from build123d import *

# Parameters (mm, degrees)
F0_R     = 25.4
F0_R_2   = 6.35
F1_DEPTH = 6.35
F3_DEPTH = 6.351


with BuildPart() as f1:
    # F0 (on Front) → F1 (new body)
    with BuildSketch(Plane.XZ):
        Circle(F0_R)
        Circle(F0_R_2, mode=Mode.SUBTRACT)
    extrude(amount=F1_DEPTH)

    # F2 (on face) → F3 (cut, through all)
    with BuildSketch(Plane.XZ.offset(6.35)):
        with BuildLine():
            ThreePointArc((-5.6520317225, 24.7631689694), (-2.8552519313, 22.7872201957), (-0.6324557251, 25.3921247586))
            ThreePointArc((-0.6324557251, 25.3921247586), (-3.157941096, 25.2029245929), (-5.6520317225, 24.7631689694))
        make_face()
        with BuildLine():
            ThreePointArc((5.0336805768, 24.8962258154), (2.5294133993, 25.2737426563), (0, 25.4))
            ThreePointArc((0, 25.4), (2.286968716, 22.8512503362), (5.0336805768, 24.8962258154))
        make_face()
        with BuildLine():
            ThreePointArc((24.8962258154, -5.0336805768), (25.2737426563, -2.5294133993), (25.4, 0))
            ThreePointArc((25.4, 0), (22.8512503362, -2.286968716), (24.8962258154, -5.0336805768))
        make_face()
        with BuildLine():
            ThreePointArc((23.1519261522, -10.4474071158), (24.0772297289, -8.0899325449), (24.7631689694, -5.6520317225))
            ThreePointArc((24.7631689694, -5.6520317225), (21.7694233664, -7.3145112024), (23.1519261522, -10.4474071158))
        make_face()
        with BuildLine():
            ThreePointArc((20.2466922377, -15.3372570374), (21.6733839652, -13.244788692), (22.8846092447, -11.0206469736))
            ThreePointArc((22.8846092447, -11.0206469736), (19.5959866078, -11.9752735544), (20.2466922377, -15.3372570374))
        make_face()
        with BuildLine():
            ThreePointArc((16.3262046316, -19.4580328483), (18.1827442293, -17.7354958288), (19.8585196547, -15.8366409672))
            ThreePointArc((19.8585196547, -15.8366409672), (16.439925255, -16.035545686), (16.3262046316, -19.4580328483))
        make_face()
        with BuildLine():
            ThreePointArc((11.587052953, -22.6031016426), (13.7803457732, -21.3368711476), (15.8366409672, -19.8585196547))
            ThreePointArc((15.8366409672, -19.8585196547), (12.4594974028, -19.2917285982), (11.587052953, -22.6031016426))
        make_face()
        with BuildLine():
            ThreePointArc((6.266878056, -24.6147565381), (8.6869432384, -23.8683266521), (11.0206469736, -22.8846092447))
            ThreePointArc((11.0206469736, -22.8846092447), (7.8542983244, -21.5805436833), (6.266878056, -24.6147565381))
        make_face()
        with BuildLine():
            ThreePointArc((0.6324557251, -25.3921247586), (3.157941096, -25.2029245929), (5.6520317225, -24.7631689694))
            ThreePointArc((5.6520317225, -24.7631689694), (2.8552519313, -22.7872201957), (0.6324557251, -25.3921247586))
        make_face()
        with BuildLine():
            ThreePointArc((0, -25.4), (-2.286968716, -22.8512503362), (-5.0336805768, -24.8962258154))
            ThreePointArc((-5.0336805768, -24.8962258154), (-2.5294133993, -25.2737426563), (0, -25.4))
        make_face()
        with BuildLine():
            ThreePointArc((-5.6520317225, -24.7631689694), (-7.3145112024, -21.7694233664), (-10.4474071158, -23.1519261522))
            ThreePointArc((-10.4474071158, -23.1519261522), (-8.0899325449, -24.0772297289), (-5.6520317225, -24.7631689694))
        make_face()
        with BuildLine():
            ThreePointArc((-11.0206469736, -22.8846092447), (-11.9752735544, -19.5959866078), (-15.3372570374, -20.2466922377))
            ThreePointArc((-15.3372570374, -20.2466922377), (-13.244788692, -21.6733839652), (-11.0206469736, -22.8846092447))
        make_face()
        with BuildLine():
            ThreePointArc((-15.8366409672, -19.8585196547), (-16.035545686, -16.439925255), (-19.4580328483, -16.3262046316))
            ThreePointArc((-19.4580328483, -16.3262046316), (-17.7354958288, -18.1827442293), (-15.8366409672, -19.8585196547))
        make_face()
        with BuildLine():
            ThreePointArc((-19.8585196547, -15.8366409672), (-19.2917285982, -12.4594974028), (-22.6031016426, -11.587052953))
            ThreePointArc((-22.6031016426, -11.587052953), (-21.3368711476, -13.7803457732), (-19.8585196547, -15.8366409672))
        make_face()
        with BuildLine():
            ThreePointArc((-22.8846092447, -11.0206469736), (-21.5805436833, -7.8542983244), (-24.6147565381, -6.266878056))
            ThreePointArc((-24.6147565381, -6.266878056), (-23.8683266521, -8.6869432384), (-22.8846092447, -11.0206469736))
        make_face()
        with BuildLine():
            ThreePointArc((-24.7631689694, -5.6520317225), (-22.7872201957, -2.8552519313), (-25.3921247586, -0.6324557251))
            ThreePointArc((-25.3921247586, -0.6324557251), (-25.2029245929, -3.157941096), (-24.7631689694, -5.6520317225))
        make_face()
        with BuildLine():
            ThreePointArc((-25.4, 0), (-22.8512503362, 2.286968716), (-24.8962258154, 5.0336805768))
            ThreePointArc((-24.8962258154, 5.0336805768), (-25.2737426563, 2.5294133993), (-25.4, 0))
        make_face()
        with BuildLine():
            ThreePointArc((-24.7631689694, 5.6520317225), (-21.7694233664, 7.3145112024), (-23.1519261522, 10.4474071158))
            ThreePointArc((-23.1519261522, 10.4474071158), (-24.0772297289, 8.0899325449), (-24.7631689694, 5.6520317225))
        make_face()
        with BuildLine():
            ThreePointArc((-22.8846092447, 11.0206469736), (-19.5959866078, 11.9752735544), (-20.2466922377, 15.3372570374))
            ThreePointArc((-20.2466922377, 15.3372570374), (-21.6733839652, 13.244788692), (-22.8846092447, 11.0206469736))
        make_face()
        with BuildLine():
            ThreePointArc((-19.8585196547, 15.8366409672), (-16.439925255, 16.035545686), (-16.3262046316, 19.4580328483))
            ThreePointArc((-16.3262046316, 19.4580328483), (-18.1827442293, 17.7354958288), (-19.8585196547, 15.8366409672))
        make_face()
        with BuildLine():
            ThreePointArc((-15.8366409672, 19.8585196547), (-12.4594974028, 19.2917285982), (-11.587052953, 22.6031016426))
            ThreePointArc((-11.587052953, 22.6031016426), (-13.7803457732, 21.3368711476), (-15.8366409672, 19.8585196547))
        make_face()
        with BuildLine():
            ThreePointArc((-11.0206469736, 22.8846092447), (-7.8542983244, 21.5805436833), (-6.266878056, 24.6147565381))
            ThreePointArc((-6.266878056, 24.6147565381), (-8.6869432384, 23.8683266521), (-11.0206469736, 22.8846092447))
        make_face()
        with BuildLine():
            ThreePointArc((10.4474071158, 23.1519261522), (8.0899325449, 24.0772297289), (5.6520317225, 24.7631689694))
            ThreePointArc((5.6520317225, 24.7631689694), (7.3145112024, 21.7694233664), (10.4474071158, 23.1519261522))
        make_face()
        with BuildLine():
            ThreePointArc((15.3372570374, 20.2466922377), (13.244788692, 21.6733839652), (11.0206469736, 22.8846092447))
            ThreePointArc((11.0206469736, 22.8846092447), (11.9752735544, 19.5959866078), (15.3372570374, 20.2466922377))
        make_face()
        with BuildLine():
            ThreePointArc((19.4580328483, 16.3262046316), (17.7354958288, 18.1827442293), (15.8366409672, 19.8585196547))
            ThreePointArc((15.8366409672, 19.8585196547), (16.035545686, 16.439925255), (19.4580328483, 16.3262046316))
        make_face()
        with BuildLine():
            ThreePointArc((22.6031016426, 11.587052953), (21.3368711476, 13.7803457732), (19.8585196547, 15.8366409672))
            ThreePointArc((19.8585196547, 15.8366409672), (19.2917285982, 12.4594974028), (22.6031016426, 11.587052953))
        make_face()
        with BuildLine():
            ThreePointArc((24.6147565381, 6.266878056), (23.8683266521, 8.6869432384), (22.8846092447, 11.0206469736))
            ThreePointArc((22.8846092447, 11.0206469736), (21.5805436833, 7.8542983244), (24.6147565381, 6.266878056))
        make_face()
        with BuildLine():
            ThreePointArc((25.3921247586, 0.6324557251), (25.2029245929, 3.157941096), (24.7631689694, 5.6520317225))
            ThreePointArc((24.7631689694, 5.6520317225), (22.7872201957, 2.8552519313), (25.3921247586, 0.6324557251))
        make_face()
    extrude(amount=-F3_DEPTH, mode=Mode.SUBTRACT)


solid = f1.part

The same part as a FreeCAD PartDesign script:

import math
import FreeCAD as App
import Part
import Sketcher
from FreeCAD import Vector
Q = App.Units.Quantity

doc = App.newDocument("Part")
params = doc.addObject("Spreadsheet::Sheet", "Params")
for row, (alias, value) in enumerate([
    ("sketch1_diameter", "2 in"),
    ("sketch1_diameter2", "0.5 in"),
    ("pad1_length", "0.25 in"),
    ("sketch2_radius", "1 in"),
    ("sketch2_radius2", "0.1 in"),
], start=1):
    params.set(f"A{row}", alias)
    params.set(f"B{row}", "=" + value)
    params.setAlias(f"B{row}", alias)

body = doc.addObject("PartDesign::Body", "Body")

# Sketch on XZ plane
sketch1 = doc.addObject("Sketcher::SketchObject", "Sketch")
body.addObject(sketch1)
sketch1.AttachmentSupport = (doc.XZ_Plane, [""])
sketch1.MapMode = "FlatFace"
sketch1.addGeometry([
    Part.Circle(Vector(0, 0, 0), Vector(0, 0, 1), 25),
    Part.Circle(Vector(0, 0, 0), Vector(0, 0, 1), 6),
], False)
sketch1.addConstraint([
    Sketcher.Constraint("Coincident", 0, 3, -1, 1),
    Sketcher.Constraint("Coincident", 1, 3, -1, 1),
    Sketcher.Constraint("Diameter", 0, Q("2 in")),
    Sketcher.Constraint("Diameter", 1, Q("0.5 in")),
])
sketch1.setExpression("Constraints[2]", "Params.sketch1_diameter")
sketch1.setExpression("Constraints[3]", "Params.sketch1_diameter2")
pad1 = doc.addObject("PartDesign::Pad", "Pad")
body.addObject(pad1)
pad1.Profile = sketch1
pad1.setExpression("Length", "Params.pad1_length")

# Sketch on XZ plane
sketch2 = doc.addObject("Sketcher::SketchObject", "Sketch001")
body.addObject(sketch2)
sketch2.AttachmentSupport = (doc.XZ_Plane, [""])
sketch2.MapMode = "FlatFace"
sketch2.AttachmentOffset = App.Placement(Vector(0, 0, 0.25 * 25.4), App.Rotation())
sketch2.addGeometry([
    Part.ArcOfCircle(Part.Circle(Vector(-3.171046, 25.307513, 0), Vector(0, 0, 1), 2.54), math.radians(-167.625036), math.radians(1.908982)),  # 0
    Part.ArcOfCircle(Part.Circle(Vector(0, 0, 0), Vector(0, 0, 1), 25.4), math.radians(91.426803), math.radians(102.857143)),  # 1
    Part.ArcOfCircle(Part.Circle(Vector(0, 0, 0), Vector(0, 0, 1), 25.4), math.radians(78.56966), math.radians(90)),  # 2
    Part.ArcOfCircle(Part.Circle(Vector(2.53991, 25.378625, 0), Vector(0, 0, 1), 2.54), math.radians(179.517821), math.radians(349.051839)),  # 3
    Part.ArcOfCircle(Part.Circle(Vector(0, 0, 0), Vector(0, 0, 1), 25.4), math.radians(-11.43034), math.radians(0)),  # 4
    Part.ArcOfCircle(Part.Circle(Vector(25.378625, -2.53991, 0), Vector(0, 0, 1), 2.54), math.radians(89.517821), math.radians(259.051839)),  # 5
    Part.ArcOfCircle(Part.Circle(Vector(0, 0, 0), Vector(0, 0, 1), 25.4), math.radians(-24.287483), math.radians(-12.857143)),  # 6
    Part.ArcOfCircle(Part.Circle(Vector(24.177146, -8.123504, 0), Vector(0, 0, 1), 2.54), math.radians(76.660678), math.radians(246.194696)),  # 7
    Part.ArcOfCircle(Part.Circle(Vector(0, 0, 0), Vector(0, 0, 1), 25.4), math.radians(-37.144626), math.radians(-25.714286)),  # 8
    Part.ArcOfCircle(Part.Circle(Vector(21.763325, -13.299752, 0), Vector(0, 0, 1), 2.54), math.radians(63.803535), math.radians(233.337553)),  # 9
    Part.ArcOfCircle(Part.Circle(Vector(0, 0, 0), Vector(0, 0, 1), 25.4), math.radians(-50.001769), math.radians(-38.571429)),  # 10
    Part.ArcOfCircle(Part.Circle(Vector(18.2582, -17.809095, 0), Vector(0, 0, 1), 2.54), math.radians(50.946392), math.radians(220.48041)),  # 11
    Part.ArcOfCircle(Part.Circle(Vector(0, 0, 0), Vector(0, 0, 1), 25.4), math.radians(-62.858912), math.radians(-51.428571)),  # 12
    Part.ArcOfCircle(Part.Circle(Vector(13.837532, -21.425416, 0), Vector(0, 0, 1), 2.54), math.radians(38.08925), math.radians(207.623267)),  # 13
    Part.ArcOfCircle(Part.Circle(Vector(0, 0, 0), Vector(0, 0, 1), 25.4), math.radians(-75.716054), math.radians(-64.285714)),  # 14
    Part.ArcOfCircle(Part.Circle(Vector(8.722993, -23.967376, 0), Vector(0, 0, 1), 2.54), math.radians(25.232107), math.radians(194.766125)),  # 15
    Part.ArcOfCircle(Part.Circle(Vector(0, 0, 0), Vector(0, 0, 1), 25.4), math.radians(-88.573197), math.radians(-77.142857)),  # 16
    Part.ArcOfCircle(Part.Circle(Vector(3.171046, -25.307513, 0), Vector(0, 0, 1), 2.54), math.radians(12.374964), math.radians(181.908982)),  # 17
    Part.ArcOfCircle(Part.Circle(Vector(-2.53991, -25.378625, 0), Vector(0, 0, 1), 2.54), math.radians(-0.482179), math.radians(169.051839)),  # 18
    Part.ArcOfCircle(Part.Circle(Vector(0, 0, 0), Vector(0, 0, 1), 25.4), math.radians(-101.43034), math.radians(-90)),  # 19
    Part.ArcOfCircle(Part.Circle(Vector(-8.123504, -24.177146, 0), Vector(0, 0, 1), 2.54), math.radians(-13.339322), math.radians(156.194696)),  # 20
    Part.ArcOfCircle(Part.Circle(Vector(0, 0, 0), Vector(0, 0, 1), 25.4), math.radians(-114.287483), math.radians(-102.857143)),  # 21
    Part.ArcOfCircle(Part.Circle(Vector(-13.299752, -21.763325, 0), Vector(0, 0, 1), 2.54), math.radians(-26.196465), math.radians(143.337553)),  # 22
    Part.ArcOfCircle(Part.Circle(Vector(0, 0, 0), Vector(0, 0, 1), 25.4), math.radians(-127.144626), math.radians(-115.714286)),  # 23
    Part.ArcOfCircle(Part.Circle(Vector(-17.809095, -18.2582, 0), Vector(0, 0, 1), 2.54), math.radians(-39.053608), math.radians(130.48041)),  # 24
    Part.ArcOfCircle(Part.Circle(Vector(0, 0, 0), Vector(0, 0, 1), 25.4), math.radians(-140.001769), math.radians(-128.571429)),  # 25
    Part.ArcOfCircle(Part.Circle(Vector(-21.425416, -13.837532, 0), Vector(0, 0, 1), 2.54), math.radians(-51.91075), math.radians(117.623267)),  # 26
    Part.ArcOfCircle(Part.Circle(Vector(0, 0, 0), Vector(0, 0, 1), 25.4), math.radians(-152.858912), math.radians(-141.428571)),  # 27
    Part.ArcOfCircle(Part.Circle(Vector(-23.967376, -8.722993, 0), Vector(0, 0, 1), 2.54), math.radians(-64.767893), math.radians(104.766125)),  # 28
    Part.ArcOfCircle(Part.Circle(Vector(0, 0, 0), Vector(0, 0, 1), 25.4), math.radians(-165.716054), math.radians(-154.285714)),  # 29
    Part.ArcOfCircle(Part.Circle(Vector(-25.307513, -3.171046, 0), Vector(0, 0, 1), 2.54), math.radians(-77.625036), math.radians(91.908982)),  # 30
    Part.ArcOfCircle(Part.Circle(Vector(0, 0, 0), Vector(0, 0, 1), 25.4), math.radians(-178.573197), math.radians(-167.142857)),  # 31
    Part.ArcOfCircle(Part.Circle(Vector(-25.378625, 2.53991, 0), Vector(0, 0, 1), 2.54), math.radians(-90.482179), math.radians(79.051839)),  # 32
    Part.ArcOfCircle(Part.Circle(Vector(0, 0, 0), Vector(0, 0, 1), 25.4), math.radians(168.56966), math.radians(180)),  # 33
    Part.ArcOfCircle(Part.Circle(Vector(-24.177146, 8.123504, 0), Vector(0, 0, 1), 2.54), math.radians(-103.339322), math.radians(66.194696)),  # 34
    Part.ArcOfCircle(Part.Circle(Vector(0, 0, 0), Vector(0, 0, 1), 25.4), math.radians(155.712517), math.radians(167.142857)),  # 35
    Part.ArcOfCircle(Part.Circle(Vector(-21.763325, 13.299752, 0), Vector(0, 0, 1), 2.54), math.radians(-116.196465), math.radians(53.337553)),  # 36
    Part.ArcOfCircle(Part.Circle(Vector(0, 0, 0), Vector(0, 0, 1), 25.4), math.radians(142.855374), math.radians(154.285714)),  # 37
    Part.ArcOfCircle(Part.Circle(Vector(-18.2582, 17.809095, 0), Vector(0, 0, 1), 2.54), math.radians(-129.053608), math.radians(40.48041)),  # 38
    Part.ArcOfCircle(Part.Circle(Vector(0, 0, 0), Vector(0, 0, 1), 25.4), math.radians(129.998231), math.radians(141.428571)),  # 39
    Part.ArcOfCircle(Part.Circle(Vector(-13.837532, 21.425416, 0), Vector(0, 0, 1), 2.54), math.radians(-141.91075), math.radians(27.623267)),  # 40
    Part.ArcOfCircle(Part.Circle(Vector(0, 0, 0), Vector(0, 0, 1), 25.4), math.radians(117.141088), math.radians(128.571429)),  # 41
    Part.ArcOfCircle(Part.Circle(Vector(-8.722993, 23.967376, 0), Vector(0, 0, 1), 2.54), math.radians(-154.767893), math.radians(14.766125)),  # 42
    Part.ArcOfCircle(Part.Circle(Vector(0, 0, 0), Vector(0, 0, 1), 25.4), math.radians(104.283946), math.radians(115.714286)),  # 43
    Part.ArcOfCircle(Part.Circle(Vector(0, 0, 0), Vector(0, 0, 1), 25.4), math.radians(65.712517), math.radians(77.142857)),  # 44
    Part.ArcOfCircle(Part.Circle(Vector(8.123504, 24.177146, 0), Vector(0, 0, 1), 2.54), math.radians(166.660678), math.radians(336.194696)),  # 45
    Part.ArcOfCircle(Part.Circle(Vector(0, 0, 0), Vector(0, 0, 1), 25.4), math.radians(52.855374), math.radians(64.285714)),  # 46
    Part.ArcOfCircle(Part.Circle(Vector(13.299752, 21.763325, 0), Vector(0, 0, 1), 2.54), math.radians(153.803535), math.radians(323.337553)),  # 47
    Part.ArcOfCircle(Part.Circle(Vector(0, 0, 0), Vector(0, 0, 1), 25.4), math.radians(39.998231), math.radians(51.428571)),  # 48
    Part.ArcOfCircle(Part.Circle(Vector(17.809095, 18.2582, 0), Vector(0, 0, 1), 2.54), math.radians(140.946392), math.radians(310.48041)),  # 49
    Part.ArcOfCircle(Part.Circle(Vector(0, 0, 0), Vector(0, 0, 1), 25.4), math.radians(27.141088), math.radians(38.571429)),  # 50
    Part.ArcOfCircle(Part.Circle(Vector(21.425416, 13.837532, 0), Vector(0, 0, 1), 2.54), math.radians(128.08925), math.radians(297.623267)),  # 51
    Part.ArcOfCircle(Part.Circle(Vector(0, 0, 0), Vector(0, 0, 1), 25.4), math.radians(14.283946), math.radians(25.714286)),  # 52
    Part.ArcOfCircle(Part.Circle(Vector(23.967376, 8.722993, 0), Vector(0, 0, 1), 2.54), math.radians(115.232107), math.radians(284.766125)),  # 53
    Part.ArcOfCircle(Part.Circle(Vector(0, 0, 0), Vector(0, 0, 1), 25.4), math.radians(1.426803), math.radians(12.857143)),  # 54
    Part.ArcOfCircle(Part.Circle(Vector(25.307513, 3.171046, 0), Vector(0, 0, 1), 2.54), math.radians(102.374964), math.radians(271.908982)),  # 55
], False)
sketch2.addConstraint([
    Sketcher.Constraint("Coincident", 0, 1, 1, 2),
    Sketcher.Constraint("Coincident", 1, 1, 0, 2),
    Sketcher.Constraint("Coincident", 2, 1, 3, 2),
    Sketcher.Constraint("Coincident", 3, 1, 2, 2),
    Sketcher.Constraint("Coincident", 4, 1, 5, 2),
    Sketcher.Constraint("Coincident", 5, 1, 4, 2),
    Sketcher.Constraint("Coincident", 6, 1, 7, 2),
    Sketcher.Constraint("Coincident", 7, 1, 6, 2),
    Sketcher.Constraint("Coincident", 8, 1, 9, 2),
    Sketcher.Constraint("Coincident", 9, 1, 8, 2),
    Sketcher.Constraint("Coincident", 10, 1, 11, 2),
    Sketcher.Constraint("Coincident", 11, 1, 10, 2),
    Sketcher.Constraint("Coincident", 12, 1, 13, 2),
    Sketcher.Constraint("Coincident", 13, 1, 12, 2),
    Sketcher.Constraint("Coincident", 14, 1, 15, 2),
    Sketcher.Constraint("Coincident", 15, 1, 14, 2),
    Sketcher.Constraint("Coincident", 16, 1, 17, 2),
    Sketcher.Constraint("Coincident", 17, 1, 16, 2),
    Sketcher.Constraint("Coincident", 18, 1, 19, 2),
    Sketcher.Constraint("Coincident", 19, 1, 18, 2),
    Sketcher.Constraint("Coincident", 20, 1, 21, 2),
    Sketcher.Constraint("Coincident", 21, 1, 20, 2),
    Sketcher.Constraint("Coincident", 22, 1, 23, 2),
    Sketcher.Constraint("Coincident", 23, 1, 22, 2),
    Sketcher.Constraint("Coincident", 24, 1, 25, 2),
    Sketcher.Constraint("Coincident", 25, 1, 24, 2),
    Sketcher.Constraint("Coincident", 26, 1, 27, 2),
    Sketcher.Constraint("Coincident", 27, 1, 26, 2),
    Sketcher.Constraint("Coincident", 28, 1, 29, 2),
    Sketcher.Constraint("Coincident", 29, 1, 28, 2),
    Sketcher.Constraint("Coincident", 30, 1, 31, 2),
    Sketcher.Constraint("Coincident", 31, 1, 30, 2),
    Sketcher.Constraint("Coincident", 32, 1, 33, 2),
    Sketcher.Constraint("Coincident", 33, 1, 32, 2),
    Sketcher.Constraint("Coincident", 34, 1, 35, 2),
    Sketcher.Constraint("Coincident", 35, 1, 34, 2),
    Sketcher.Constraint("Coincident", 36, 1, 37, 2),
    Sketcher.Constraint("Coincident", 37, 1, 36, 2),
    Sketcher.Constraint("Coincident", 38, 1, 39, 2),
    Sketcher.Constraint("Coincident", 39, 1, 38, 2),
    Sketcher.Constraint("Coincident", 40, 1, 41, 2),
    Sketcher.Constraint("Coincident", 41, 1, 40, 2),
    Sketcher.Constraint("Coincident", 42, 1, 43, 2),
    Sketcher.Constraint("Coincident", 43, 1, 42, 2),
    Sketcher.Constraint("Coincident", 44, 1, 45, 2),
    Sketcher.Constraint("Coincident", 45, 1, 44, 2),
    Sketcher.Constraint("Coincident", 46, 1, 47, 2),
    Sketcher.Constraint("Coincident", 47, 1, 46, 2),
    Sketcher.Constraint("Coincident", 48, 1, 49, 2),
    Sketcher.Constraint("Coincident", 49, 1, 48, 2),
    Sketcher.Constraint("Coincident", 50, 1, 51, 2),
    Sketcher.Constraint("Coincident", 51, 1, 50, 2),
    Sketcher.Constraint("Coincident", 52, 1, 53, 2),
    Sketcher.Constraint("Coincident", 53, 1, 52, 2),
    Sketcher.Constraint("Coincident", 54, 1, 55, 2),
    Sketcher.Constraint("Coincident", 55, 1, 54, 2),
    Sketcher.Constraint("Coincident", 1, 3, -1, 1),
    Sketcher.Constraint("Coincident", 2, 3, -1, 1),
    Sketcher.Constraint("Coincident", 4, 3, -1, 1),
    Sketcher.Constraint("Coincident", 6, 3, -1, 1),
    Sketcher.Constraint("Coincident", 8, 3, -1, 1),
    Sketcher.Constraint("Coincident", 10, 3, -1, 1),
    Sketcher.Constraint("Coincident", 12, 3, -1, 1),
    Sketcher.Constraint("Coincident", 14, 3, -1, 1),
    Sketcher.Constraint("Coincident", 16, 3, -1, 1),
    Sketcher.Constraint("Coincident", 19, 3, -1, 1),
    Sketcher.Constraint("Coincident", 21, 3, -1, 1),
    Sketcher.Constraint("Coincident", 23, 3, -1, 1),
    Sketcher.Constraint("Coincident", 25, 3, -1, 1),
    Sketcher.Constraint("Coincident", 27, 3, -1, 1),
    Sketcher.Constraint("Coincident", 29, 3, -1, 1),
    Sketcher.Constraint("Coincident", 31, 3, -1, 1),
    Sketcher.Constraint("Coincident", 33, 3, -1, 1),
    Sketcher.Constraint("Coincident", 35, 3, -1, 1),
    Sketcher.Constraint("Coincident", 37, 3, -1, 1),
    Sketcher.Constraint("Coincident", 39, 3, -1, 1),
    Sketcher.Constraint("Coincident", 41, 3, -1, 1),
    Sketcher.Constraint("Coincident", 43, 3, -1, 1),
    Sketcher.Constraint("Coincident", 44, 3, -1, 1),
    Sketcher.Constraint("Coincident", 46, 3, -1, 1),
    Sketcher.Constraint("Coincident", 48, 3, -1, 1),
    Sketcher.Constraint("Coincident", 50, 3, -1, 1),
    Sketcher.Constraint("Coincident", 52, 3, -1, 1),
    Sketcher.Constraint("Coincident", 54, 3, -1, 1),
    Sketcher.Constraint("Equal", 1, 2),
    Sketcher.Constraint("Equal", 0, 3),
    Sketcher.Constraint("Equal", 2, 4),
    Sketcher.Constraint("Equal", 3, 5),
    Sketcher.Constraint("Equal", 4, 6),
    Sketcher.Constraint("Equal", 5, 7),
    Sketcher.Constraint("Equal", 6, 8),
    Sketcher.Constraint("Equal", 7, 9),
    Sketcher.Constraint("Equal", 8, 10),
    Sketcher.Constraint("Equal", 9, 11),
    Sketcher.Constraint("Equal", 10, 12),
    Sketcher.Constraint("Equal", 11, 13),
    Sketcher.Constraint("Equal", 12, 14),
    Sketcher.Constraint("Equal", 13, 15),
    Sketcher.Constraint("Equal", 14, 16),
    Sketcher.Constraint("Equal", 15, 17),
    Sketcher.Constraint("Equal", 17, 18),
    Sketcher.Constraint("Equal", 16, 19),
    Sketcher.Constraint("Equal", 18, 20),
    Sketcher.Constraint("Equal", 19, 21),
    Sketcher.Constraint("Equal", 20, 22),
    Sketcher.Constraint("Equal", 21, 23),
    Sketcher.Constraint("Equal", 22, 24),
    Sketcher.Constraint("Equal", 23, 25),
    Sketcher.Constraint("Equal", 24, 26),
    Sketcher.Constraint("Equal", 25, 27),
    Sketcher.Constraint("Equal", 26, 28),
    Sketcher.Constraint("Equal", 27, 29),
    Sketcher.Constraint("Equal", 28, 30),
    Sketcher.Constraint("Equal", 29, 31),
    Sketcher.Constraint("Equal", 30, 32),
    Sketcher.Constraint("Equal", 31, 33),
    Sketcher.Constraint("Equal", 32, 34),
    Sketcher.Constraint("Equal", 33, 35),
    Sketcher.Constraint("Equal", 34, 36),
    Sketcher.Constraint("Equal", 35, 37),
    Sketcher.Constraint("Equal", 36, 38),
    Sketcher.Constraint("Equal", 37, 39),
    Sketcher.Constraint("Equal", 38, 40),
    Sketcher.Constraint("Equal", 39, 41),
    Sketcher.Constraint("Equal", 40, 42),
    Sketcher.Constraint("Equal", 41, 43),
    Sketcher.Constraint("Equal", 43, 44),
    Sketcher.Constraint("Equal", 42, 45),
    Sketcher.Constraint("Equal", 44, 46),
    Sketcher.Constraint("Equal", 45, 47),
    Sketcher.Constraint("Equal", 46, 48),
    Sketcher.Constraint("Equal", 47, 49),
    Sketcher.Constraint("Equal", 48, 50),
    Sketcher.Constraint("Equal", 49, 51),
    Sketcher.Constraint("Equal", 50, 52),
    Sketcher.Constraint("Equal", 51, 53),
    Sketcher.Constraint("Equal", 52, 54),
    Sketcher.Constraint("Equal", 53, 55),
    Sketcher.Constraint("Symmetric", 0, 3, 17, 3, -1, 1),
    Sketcher.Constraint("Symmetric", 3, 3, 18, 3, -1, 1),
    Sketcher.Constraint("Symmetric", 5, 3, 32, 3, -1, 1),
    Sketcher.Constraint("Symmetric", 7, 3, 34, 3, -1, 1),
    Sketcher.Constraint("Symmetric", 9, 3, 36, 3, -1, 1),
    Sketcher.Constraint("Symmetric", 11, 3, 38, 3, -1, 1),
    Sketcher.Constraint("Symmetric", 13, 3, 40, 3, -1, 1),
    Sketcher.Constraint("Symmetric", 15, 3, 42, 3, -1, 1),
    Sketcher.Constraint("Symmetric", 20, 3, 45, 3, -1, 1),
    Sketcher.Constraint("Symmetric", 22, 3, 47, 3, -1, 1),
    Sketcher.Constraint("Symmetric", 24, 3, 49, 3, -1, 1),
    Sketcher.Constraint("Symmetric", 26, 3, 51, 3, -1, 1),
    Sketcher.Constraint("Symmetric", 28, 3, 53, 3, -1, 1),
    Sketcher.Constraint("Symmetric", 30, 3, 55, 3, -1, 1),
    Sketcher.Constraint("PointOnObject", 3, 1, -2),
    Sketcher.Constraint("PointOnObject", 5, 1, -1),
    Sketcher.Constraint("Horizontal", 17, 1, 20, 1),
    Sketcher.Constraint("Horizontal", 15, 1, 22, 1),
    Sketcher.Constraint("Horizontal", 13, 1, 24, 1),
    Sketcher.Constraint("Horizontal", 11, 1, 26, 1),
    Sketcher.Constraint("Horizontal", 9, 1, 28, 1),
    Sketcher.Constraint("Horizontal", 7, 1, 30, 1),
    Sketcher.Constraint("Radius", 1, Q("1 in")),
    Sketcher.Constraint("Radius", 0, Q("0.1 in")),
    Sketcher.Constraint("DistanceX", 1, 1, -1, 1, Q("0.0248998 in")),
    Sketcher.Constraint("DistanceY", 31, 1, -1, 1, Q("0.0248998 in")),
    Sketcher.Constraint("DistanceX", -1, 1, 11, 3, 18.2582),
    Sketcher.Constraint("DistanceY", 24, 3, -1, 1, 18.2582),
    Sketcher.Constraint("DistanceY", 12, 1, -1, 1, 22.603102),
    Sketcher.Constraint("DistanceX", 27, 1, -1, 1, 22.603102),
    Sketcher.Constraint("DistanceX", -1, 1, 3, 3, 2.53991),
    Sketcher.Constraint("DistanceY", 5, 3, -1, 1, 2.53991),
    Sketcher.Constraint("DistanceX", -1, 1, 13, 3, 13.837532),
    Sketcher.Constraint("DistanceY", 26, 3, -1, 1, 13.837532),
    Sketcher.Constraint("DistanceX", 0, 1, -1, 1, 5.652032),
    Sketcher.Constraint("DistanceX", -1, 1, 7, 1, 24.763169),
    Sketcher.Constraint("DistanceX", -1, 1, 9, 1, 22.884609),
    Sketcher.Constraint("DistanceX", -1, 1, 14, 1, 6.266878),
    Sketcher.Constraint("DistanceY", 15, 1, -1, 1, 22.884609),
    Sketcher.Constraint("DistanceY", 29, 1, -1, 1, 6.266878),
    Sketcher.Constraint("DistanceX", -1, 1, 7, 3, 24.177146),
    Sketcher.Constraint("DistanceX", -1, 1, 9, 3, 21.763325),
    Sketcher.Constraint("DistanceX", 20, 3, -1, 1, 8.123504),
    Sketcher.Constraint("DistanceX", 22, 3, -1, 1, 13.299752),
])
sketch2.setExpression("Constraints[160]", "Params.sketch2_radius")
sketch2.setExpression("Constraints[161]", "Params.sketch2_radius2")
pocket1 = doc.addObject("PartDesign::Pocket", "Pocket")
body.addObject(pocket1)
pocket1.Profile = sketch2
pocket1.Type = "ThroughAll"

doc.recompute()
